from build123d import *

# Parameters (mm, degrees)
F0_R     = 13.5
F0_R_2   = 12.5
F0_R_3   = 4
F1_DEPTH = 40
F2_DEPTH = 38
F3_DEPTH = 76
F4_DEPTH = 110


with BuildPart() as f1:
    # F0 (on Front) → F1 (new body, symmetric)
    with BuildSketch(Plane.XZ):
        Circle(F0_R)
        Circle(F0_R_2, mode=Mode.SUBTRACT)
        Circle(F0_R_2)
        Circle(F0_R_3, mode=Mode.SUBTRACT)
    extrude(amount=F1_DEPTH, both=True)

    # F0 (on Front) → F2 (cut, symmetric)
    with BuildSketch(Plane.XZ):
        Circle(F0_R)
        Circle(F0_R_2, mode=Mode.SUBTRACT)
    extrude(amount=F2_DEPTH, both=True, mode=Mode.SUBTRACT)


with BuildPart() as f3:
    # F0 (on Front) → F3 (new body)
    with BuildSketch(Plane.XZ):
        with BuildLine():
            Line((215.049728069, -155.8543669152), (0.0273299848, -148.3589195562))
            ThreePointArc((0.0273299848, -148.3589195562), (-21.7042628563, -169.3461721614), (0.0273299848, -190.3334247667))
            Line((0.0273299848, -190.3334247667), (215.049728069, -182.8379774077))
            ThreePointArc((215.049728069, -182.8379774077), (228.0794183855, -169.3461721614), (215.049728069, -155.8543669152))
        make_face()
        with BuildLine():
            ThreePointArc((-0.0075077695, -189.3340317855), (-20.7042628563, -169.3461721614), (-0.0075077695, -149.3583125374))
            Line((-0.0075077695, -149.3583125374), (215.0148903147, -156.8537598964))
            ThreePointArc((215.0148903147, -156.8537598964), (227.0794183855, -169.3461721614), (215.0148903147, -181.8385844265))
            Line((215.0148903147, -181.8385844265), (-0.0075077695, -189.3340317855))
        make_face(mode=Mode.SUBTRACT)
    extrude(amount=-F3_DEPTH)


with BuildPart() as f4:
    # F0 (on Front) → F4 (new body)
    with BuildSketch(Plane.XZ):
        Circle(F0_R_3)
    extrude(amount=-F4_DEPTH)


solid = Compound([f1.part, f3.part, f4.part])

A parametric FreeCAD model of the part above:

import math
import FreeCAD as App
import Part
import Sketcher
Q = App.Units.Quantity

doc = App.newDocument("Part")
body = doc.addObject("PartDesign::Body", "Body")

sketch1 = doc.addObject("Sketcher::SketchObject", "Sketch")
body.addObject(sketch1)
sketch1.AttachmentSupport = (doc.XZ_Plane, [""])
sketch1.MapMode = "FlatFace"
sketch1.addGeometry([
    Part.Circle(App.Vector(0, 0, 0), App.Vector(0, 0, 1), 13.5),
    Part.Circle(App.Vector(0, 0, 0), App.Vector(0, 0, 1), 4),
], False)
sketch1.addConstraint([
    Sketcher.Constraint("Coincident", 0, 3, -1, 1),
    Sketcher.Constraint("Coincident", 1, 3, -1, 1),
    Sketcher.Constraint("Diameter", 0, Q("27 mm")),
    Sketcher.Constraint("Diameter", 1, Q("8 mm")),
])
pad1 = doc.addObject("PartDesign::Pad", "Pad")
body.addObject(pad1)
pad1.Profile = sketch1
pad1.Length = 80
pad1.Midplane = True

sketch2 = doc.addObject("Sketcher::SketchObject", "Sketch001")
body.addObject(sketch2)
sketch2.AttachmentSupport = (doc.XZ_Plane, [""])
sketch2.MapMode = "FlatFace"
sketch2.addGeometry([
    Part.Circle(App.Vector(0, 0, 0), App.Vector(0, 0, 1), 14),
    Part.Circle(App.Vector(0, 0, 0), App.Vector(0, 0, 1), 12),
], False)
sketch2.addConstraint([
    Sketcher.Constraint("Coincident", 0, 3, -1, 1),
    Sketcher.Constraint("Coincident", 1, 3, -1, 1),
    Sketcher.Constraint("Diameter", 0, Q("27 mm")),
    Sketcher.Constraint("Diameter", 1, Q("25 mm")),
])
pocket1 = doc.addObject("PartDesign::Pocket", "Pocket")
body.addObject(pocket1)
pocket1.Profile = sketch2
pocket1.Length = 76
pocket1.Midplane = True
body2 = doc.addObject("PartDesign::Body", "Body001")

sketch3 = doc.addObject("Sketcher::SketchObject", "Sketch002")
body2.addObject(sketch3)
sketch3.AttachmentSupport = (doc.getObject("XZ_Plane001"), [""])
sketch3.MapMode = "FlatFace"
sketch3.addGeometry([
    Part.LineSegment(App.Vector(215, -156, 0), App.Vector(0, -148, 0)),
    Part.ArcOfCircle(Part.Circle(App.Vector(-1, -169, 0), App.Vector(0, 0, 1), 21), math.radians(88), math.radians(272)),
    Part.LineSegment(App.Vector(0, -190, 0), App.Vector(215, -183, 0)),
    Part.ArcOfCircle(Part.Circle(App.Vector(215, -169, 0), App.Vector(0, 0, 1), 14), math.radians(-88), math.radians(88)),
    Part.LineSegment(App.Vector(215, -182, 0), App.Vector(0, -189, 0)),
    Part.ArcOfCircle(Part.Circle(App.Vector(-1, -169, 0), App.Vector(0, 0, 1), 20), math.radians(88), math.radians(272)),
    Part.LineSegment(App.Vector(0, -149, 0), App.Vector(215, -157, 0)),
    Part.ArcOfCircle(Part.Circle(App.Vector(215, -169, 0), App.Vector(0, 0, 1), 12), math.radians(-88), math.radians(88)),
], False)
sketch3.addConstraint([
    Sketcher.Constraint("Tangent", 0, 2, 1, 1),
    Sketcher.Constraint("Tangent", 1, 2, 2, 1),
    Sketcher.Constraint("Tangent", 2, 2, 3, 1),
    Sketcher.Constraint("Tangent", 3, 2, 0, 1),
    Sketcher.Constraint("Tangent", 4, 2, 5, 2),
    Sketcher.Constraint("Tangent", 5, 1, 6, 1),
    Sketcher.Constraint("Tangent", 6, 2, 7, 2),
    Sketcher.Constraint("Tangent", 7, 1, 4, 1),
    Sketcher.Constraint("Coincident", 5, 3, 1, 3),
    Sketcher.Constraint("Coincident", 7, 3, 3, 3),
    Sketcher.Constraint("Parallel", 2, 4),
    Sketcher.Constraint("Horizontal", 1, 3, 3, 3),
    Sketcher.Constraint("Radius", 1, Q("21 mm")),
    Sketcher.Constraint("Radius", 5, Q("20 mm")),
    Sketcher.Constraint("Radius", 3, Q("13.5 mm")),
    Sketcher.Constraint("Distance", 0, Q("215.153 mm")),
    Sketcher.Constraint("DistanceX", -1, 1, 3, 3, Q("214.579418 mm")),
    Sketcher.Constraint("DistanceY", 0, 2, -1, 1, Q("148.35892 mm")),
])
pad2 = doc.addObject("PartDesign::Pad", "Pad001")
body2.addObject(pad2)
pad2.Profile = sketch3
pad2.Length = 76
pad2.Reversed = True
body3 = doc.addObject("PartDesign::Body", "Body002")

sketch4 = doc.addObject("Sketcher::SketchObject", "Sketch003")
body3.addObject(sketch4)
sketch4.AttachmentSupport = (doc.getObject("XZ_Plane002"), [""])
sketch4.MapMode = "FlatFace"
sketch4.addGeometry(Part.Circle(App.Vector(0, 0, 0), App.Vector(0, 0, 1), 4), False)
sketch4.addConstraint([
    Sketcher.Constraint("Coincident", 0, 3, -1, 1),
    Sketcher.Constraint("Diameter", 0, Q("8 mm")),
])
pad3 = doc.addObject("PartDesign::Pad", "Pad002")
body3.addObject(pad3)
pad3.Profile = sketch4
pad3.Length = 110
pad3.Reversed = True

doc.recompute()
